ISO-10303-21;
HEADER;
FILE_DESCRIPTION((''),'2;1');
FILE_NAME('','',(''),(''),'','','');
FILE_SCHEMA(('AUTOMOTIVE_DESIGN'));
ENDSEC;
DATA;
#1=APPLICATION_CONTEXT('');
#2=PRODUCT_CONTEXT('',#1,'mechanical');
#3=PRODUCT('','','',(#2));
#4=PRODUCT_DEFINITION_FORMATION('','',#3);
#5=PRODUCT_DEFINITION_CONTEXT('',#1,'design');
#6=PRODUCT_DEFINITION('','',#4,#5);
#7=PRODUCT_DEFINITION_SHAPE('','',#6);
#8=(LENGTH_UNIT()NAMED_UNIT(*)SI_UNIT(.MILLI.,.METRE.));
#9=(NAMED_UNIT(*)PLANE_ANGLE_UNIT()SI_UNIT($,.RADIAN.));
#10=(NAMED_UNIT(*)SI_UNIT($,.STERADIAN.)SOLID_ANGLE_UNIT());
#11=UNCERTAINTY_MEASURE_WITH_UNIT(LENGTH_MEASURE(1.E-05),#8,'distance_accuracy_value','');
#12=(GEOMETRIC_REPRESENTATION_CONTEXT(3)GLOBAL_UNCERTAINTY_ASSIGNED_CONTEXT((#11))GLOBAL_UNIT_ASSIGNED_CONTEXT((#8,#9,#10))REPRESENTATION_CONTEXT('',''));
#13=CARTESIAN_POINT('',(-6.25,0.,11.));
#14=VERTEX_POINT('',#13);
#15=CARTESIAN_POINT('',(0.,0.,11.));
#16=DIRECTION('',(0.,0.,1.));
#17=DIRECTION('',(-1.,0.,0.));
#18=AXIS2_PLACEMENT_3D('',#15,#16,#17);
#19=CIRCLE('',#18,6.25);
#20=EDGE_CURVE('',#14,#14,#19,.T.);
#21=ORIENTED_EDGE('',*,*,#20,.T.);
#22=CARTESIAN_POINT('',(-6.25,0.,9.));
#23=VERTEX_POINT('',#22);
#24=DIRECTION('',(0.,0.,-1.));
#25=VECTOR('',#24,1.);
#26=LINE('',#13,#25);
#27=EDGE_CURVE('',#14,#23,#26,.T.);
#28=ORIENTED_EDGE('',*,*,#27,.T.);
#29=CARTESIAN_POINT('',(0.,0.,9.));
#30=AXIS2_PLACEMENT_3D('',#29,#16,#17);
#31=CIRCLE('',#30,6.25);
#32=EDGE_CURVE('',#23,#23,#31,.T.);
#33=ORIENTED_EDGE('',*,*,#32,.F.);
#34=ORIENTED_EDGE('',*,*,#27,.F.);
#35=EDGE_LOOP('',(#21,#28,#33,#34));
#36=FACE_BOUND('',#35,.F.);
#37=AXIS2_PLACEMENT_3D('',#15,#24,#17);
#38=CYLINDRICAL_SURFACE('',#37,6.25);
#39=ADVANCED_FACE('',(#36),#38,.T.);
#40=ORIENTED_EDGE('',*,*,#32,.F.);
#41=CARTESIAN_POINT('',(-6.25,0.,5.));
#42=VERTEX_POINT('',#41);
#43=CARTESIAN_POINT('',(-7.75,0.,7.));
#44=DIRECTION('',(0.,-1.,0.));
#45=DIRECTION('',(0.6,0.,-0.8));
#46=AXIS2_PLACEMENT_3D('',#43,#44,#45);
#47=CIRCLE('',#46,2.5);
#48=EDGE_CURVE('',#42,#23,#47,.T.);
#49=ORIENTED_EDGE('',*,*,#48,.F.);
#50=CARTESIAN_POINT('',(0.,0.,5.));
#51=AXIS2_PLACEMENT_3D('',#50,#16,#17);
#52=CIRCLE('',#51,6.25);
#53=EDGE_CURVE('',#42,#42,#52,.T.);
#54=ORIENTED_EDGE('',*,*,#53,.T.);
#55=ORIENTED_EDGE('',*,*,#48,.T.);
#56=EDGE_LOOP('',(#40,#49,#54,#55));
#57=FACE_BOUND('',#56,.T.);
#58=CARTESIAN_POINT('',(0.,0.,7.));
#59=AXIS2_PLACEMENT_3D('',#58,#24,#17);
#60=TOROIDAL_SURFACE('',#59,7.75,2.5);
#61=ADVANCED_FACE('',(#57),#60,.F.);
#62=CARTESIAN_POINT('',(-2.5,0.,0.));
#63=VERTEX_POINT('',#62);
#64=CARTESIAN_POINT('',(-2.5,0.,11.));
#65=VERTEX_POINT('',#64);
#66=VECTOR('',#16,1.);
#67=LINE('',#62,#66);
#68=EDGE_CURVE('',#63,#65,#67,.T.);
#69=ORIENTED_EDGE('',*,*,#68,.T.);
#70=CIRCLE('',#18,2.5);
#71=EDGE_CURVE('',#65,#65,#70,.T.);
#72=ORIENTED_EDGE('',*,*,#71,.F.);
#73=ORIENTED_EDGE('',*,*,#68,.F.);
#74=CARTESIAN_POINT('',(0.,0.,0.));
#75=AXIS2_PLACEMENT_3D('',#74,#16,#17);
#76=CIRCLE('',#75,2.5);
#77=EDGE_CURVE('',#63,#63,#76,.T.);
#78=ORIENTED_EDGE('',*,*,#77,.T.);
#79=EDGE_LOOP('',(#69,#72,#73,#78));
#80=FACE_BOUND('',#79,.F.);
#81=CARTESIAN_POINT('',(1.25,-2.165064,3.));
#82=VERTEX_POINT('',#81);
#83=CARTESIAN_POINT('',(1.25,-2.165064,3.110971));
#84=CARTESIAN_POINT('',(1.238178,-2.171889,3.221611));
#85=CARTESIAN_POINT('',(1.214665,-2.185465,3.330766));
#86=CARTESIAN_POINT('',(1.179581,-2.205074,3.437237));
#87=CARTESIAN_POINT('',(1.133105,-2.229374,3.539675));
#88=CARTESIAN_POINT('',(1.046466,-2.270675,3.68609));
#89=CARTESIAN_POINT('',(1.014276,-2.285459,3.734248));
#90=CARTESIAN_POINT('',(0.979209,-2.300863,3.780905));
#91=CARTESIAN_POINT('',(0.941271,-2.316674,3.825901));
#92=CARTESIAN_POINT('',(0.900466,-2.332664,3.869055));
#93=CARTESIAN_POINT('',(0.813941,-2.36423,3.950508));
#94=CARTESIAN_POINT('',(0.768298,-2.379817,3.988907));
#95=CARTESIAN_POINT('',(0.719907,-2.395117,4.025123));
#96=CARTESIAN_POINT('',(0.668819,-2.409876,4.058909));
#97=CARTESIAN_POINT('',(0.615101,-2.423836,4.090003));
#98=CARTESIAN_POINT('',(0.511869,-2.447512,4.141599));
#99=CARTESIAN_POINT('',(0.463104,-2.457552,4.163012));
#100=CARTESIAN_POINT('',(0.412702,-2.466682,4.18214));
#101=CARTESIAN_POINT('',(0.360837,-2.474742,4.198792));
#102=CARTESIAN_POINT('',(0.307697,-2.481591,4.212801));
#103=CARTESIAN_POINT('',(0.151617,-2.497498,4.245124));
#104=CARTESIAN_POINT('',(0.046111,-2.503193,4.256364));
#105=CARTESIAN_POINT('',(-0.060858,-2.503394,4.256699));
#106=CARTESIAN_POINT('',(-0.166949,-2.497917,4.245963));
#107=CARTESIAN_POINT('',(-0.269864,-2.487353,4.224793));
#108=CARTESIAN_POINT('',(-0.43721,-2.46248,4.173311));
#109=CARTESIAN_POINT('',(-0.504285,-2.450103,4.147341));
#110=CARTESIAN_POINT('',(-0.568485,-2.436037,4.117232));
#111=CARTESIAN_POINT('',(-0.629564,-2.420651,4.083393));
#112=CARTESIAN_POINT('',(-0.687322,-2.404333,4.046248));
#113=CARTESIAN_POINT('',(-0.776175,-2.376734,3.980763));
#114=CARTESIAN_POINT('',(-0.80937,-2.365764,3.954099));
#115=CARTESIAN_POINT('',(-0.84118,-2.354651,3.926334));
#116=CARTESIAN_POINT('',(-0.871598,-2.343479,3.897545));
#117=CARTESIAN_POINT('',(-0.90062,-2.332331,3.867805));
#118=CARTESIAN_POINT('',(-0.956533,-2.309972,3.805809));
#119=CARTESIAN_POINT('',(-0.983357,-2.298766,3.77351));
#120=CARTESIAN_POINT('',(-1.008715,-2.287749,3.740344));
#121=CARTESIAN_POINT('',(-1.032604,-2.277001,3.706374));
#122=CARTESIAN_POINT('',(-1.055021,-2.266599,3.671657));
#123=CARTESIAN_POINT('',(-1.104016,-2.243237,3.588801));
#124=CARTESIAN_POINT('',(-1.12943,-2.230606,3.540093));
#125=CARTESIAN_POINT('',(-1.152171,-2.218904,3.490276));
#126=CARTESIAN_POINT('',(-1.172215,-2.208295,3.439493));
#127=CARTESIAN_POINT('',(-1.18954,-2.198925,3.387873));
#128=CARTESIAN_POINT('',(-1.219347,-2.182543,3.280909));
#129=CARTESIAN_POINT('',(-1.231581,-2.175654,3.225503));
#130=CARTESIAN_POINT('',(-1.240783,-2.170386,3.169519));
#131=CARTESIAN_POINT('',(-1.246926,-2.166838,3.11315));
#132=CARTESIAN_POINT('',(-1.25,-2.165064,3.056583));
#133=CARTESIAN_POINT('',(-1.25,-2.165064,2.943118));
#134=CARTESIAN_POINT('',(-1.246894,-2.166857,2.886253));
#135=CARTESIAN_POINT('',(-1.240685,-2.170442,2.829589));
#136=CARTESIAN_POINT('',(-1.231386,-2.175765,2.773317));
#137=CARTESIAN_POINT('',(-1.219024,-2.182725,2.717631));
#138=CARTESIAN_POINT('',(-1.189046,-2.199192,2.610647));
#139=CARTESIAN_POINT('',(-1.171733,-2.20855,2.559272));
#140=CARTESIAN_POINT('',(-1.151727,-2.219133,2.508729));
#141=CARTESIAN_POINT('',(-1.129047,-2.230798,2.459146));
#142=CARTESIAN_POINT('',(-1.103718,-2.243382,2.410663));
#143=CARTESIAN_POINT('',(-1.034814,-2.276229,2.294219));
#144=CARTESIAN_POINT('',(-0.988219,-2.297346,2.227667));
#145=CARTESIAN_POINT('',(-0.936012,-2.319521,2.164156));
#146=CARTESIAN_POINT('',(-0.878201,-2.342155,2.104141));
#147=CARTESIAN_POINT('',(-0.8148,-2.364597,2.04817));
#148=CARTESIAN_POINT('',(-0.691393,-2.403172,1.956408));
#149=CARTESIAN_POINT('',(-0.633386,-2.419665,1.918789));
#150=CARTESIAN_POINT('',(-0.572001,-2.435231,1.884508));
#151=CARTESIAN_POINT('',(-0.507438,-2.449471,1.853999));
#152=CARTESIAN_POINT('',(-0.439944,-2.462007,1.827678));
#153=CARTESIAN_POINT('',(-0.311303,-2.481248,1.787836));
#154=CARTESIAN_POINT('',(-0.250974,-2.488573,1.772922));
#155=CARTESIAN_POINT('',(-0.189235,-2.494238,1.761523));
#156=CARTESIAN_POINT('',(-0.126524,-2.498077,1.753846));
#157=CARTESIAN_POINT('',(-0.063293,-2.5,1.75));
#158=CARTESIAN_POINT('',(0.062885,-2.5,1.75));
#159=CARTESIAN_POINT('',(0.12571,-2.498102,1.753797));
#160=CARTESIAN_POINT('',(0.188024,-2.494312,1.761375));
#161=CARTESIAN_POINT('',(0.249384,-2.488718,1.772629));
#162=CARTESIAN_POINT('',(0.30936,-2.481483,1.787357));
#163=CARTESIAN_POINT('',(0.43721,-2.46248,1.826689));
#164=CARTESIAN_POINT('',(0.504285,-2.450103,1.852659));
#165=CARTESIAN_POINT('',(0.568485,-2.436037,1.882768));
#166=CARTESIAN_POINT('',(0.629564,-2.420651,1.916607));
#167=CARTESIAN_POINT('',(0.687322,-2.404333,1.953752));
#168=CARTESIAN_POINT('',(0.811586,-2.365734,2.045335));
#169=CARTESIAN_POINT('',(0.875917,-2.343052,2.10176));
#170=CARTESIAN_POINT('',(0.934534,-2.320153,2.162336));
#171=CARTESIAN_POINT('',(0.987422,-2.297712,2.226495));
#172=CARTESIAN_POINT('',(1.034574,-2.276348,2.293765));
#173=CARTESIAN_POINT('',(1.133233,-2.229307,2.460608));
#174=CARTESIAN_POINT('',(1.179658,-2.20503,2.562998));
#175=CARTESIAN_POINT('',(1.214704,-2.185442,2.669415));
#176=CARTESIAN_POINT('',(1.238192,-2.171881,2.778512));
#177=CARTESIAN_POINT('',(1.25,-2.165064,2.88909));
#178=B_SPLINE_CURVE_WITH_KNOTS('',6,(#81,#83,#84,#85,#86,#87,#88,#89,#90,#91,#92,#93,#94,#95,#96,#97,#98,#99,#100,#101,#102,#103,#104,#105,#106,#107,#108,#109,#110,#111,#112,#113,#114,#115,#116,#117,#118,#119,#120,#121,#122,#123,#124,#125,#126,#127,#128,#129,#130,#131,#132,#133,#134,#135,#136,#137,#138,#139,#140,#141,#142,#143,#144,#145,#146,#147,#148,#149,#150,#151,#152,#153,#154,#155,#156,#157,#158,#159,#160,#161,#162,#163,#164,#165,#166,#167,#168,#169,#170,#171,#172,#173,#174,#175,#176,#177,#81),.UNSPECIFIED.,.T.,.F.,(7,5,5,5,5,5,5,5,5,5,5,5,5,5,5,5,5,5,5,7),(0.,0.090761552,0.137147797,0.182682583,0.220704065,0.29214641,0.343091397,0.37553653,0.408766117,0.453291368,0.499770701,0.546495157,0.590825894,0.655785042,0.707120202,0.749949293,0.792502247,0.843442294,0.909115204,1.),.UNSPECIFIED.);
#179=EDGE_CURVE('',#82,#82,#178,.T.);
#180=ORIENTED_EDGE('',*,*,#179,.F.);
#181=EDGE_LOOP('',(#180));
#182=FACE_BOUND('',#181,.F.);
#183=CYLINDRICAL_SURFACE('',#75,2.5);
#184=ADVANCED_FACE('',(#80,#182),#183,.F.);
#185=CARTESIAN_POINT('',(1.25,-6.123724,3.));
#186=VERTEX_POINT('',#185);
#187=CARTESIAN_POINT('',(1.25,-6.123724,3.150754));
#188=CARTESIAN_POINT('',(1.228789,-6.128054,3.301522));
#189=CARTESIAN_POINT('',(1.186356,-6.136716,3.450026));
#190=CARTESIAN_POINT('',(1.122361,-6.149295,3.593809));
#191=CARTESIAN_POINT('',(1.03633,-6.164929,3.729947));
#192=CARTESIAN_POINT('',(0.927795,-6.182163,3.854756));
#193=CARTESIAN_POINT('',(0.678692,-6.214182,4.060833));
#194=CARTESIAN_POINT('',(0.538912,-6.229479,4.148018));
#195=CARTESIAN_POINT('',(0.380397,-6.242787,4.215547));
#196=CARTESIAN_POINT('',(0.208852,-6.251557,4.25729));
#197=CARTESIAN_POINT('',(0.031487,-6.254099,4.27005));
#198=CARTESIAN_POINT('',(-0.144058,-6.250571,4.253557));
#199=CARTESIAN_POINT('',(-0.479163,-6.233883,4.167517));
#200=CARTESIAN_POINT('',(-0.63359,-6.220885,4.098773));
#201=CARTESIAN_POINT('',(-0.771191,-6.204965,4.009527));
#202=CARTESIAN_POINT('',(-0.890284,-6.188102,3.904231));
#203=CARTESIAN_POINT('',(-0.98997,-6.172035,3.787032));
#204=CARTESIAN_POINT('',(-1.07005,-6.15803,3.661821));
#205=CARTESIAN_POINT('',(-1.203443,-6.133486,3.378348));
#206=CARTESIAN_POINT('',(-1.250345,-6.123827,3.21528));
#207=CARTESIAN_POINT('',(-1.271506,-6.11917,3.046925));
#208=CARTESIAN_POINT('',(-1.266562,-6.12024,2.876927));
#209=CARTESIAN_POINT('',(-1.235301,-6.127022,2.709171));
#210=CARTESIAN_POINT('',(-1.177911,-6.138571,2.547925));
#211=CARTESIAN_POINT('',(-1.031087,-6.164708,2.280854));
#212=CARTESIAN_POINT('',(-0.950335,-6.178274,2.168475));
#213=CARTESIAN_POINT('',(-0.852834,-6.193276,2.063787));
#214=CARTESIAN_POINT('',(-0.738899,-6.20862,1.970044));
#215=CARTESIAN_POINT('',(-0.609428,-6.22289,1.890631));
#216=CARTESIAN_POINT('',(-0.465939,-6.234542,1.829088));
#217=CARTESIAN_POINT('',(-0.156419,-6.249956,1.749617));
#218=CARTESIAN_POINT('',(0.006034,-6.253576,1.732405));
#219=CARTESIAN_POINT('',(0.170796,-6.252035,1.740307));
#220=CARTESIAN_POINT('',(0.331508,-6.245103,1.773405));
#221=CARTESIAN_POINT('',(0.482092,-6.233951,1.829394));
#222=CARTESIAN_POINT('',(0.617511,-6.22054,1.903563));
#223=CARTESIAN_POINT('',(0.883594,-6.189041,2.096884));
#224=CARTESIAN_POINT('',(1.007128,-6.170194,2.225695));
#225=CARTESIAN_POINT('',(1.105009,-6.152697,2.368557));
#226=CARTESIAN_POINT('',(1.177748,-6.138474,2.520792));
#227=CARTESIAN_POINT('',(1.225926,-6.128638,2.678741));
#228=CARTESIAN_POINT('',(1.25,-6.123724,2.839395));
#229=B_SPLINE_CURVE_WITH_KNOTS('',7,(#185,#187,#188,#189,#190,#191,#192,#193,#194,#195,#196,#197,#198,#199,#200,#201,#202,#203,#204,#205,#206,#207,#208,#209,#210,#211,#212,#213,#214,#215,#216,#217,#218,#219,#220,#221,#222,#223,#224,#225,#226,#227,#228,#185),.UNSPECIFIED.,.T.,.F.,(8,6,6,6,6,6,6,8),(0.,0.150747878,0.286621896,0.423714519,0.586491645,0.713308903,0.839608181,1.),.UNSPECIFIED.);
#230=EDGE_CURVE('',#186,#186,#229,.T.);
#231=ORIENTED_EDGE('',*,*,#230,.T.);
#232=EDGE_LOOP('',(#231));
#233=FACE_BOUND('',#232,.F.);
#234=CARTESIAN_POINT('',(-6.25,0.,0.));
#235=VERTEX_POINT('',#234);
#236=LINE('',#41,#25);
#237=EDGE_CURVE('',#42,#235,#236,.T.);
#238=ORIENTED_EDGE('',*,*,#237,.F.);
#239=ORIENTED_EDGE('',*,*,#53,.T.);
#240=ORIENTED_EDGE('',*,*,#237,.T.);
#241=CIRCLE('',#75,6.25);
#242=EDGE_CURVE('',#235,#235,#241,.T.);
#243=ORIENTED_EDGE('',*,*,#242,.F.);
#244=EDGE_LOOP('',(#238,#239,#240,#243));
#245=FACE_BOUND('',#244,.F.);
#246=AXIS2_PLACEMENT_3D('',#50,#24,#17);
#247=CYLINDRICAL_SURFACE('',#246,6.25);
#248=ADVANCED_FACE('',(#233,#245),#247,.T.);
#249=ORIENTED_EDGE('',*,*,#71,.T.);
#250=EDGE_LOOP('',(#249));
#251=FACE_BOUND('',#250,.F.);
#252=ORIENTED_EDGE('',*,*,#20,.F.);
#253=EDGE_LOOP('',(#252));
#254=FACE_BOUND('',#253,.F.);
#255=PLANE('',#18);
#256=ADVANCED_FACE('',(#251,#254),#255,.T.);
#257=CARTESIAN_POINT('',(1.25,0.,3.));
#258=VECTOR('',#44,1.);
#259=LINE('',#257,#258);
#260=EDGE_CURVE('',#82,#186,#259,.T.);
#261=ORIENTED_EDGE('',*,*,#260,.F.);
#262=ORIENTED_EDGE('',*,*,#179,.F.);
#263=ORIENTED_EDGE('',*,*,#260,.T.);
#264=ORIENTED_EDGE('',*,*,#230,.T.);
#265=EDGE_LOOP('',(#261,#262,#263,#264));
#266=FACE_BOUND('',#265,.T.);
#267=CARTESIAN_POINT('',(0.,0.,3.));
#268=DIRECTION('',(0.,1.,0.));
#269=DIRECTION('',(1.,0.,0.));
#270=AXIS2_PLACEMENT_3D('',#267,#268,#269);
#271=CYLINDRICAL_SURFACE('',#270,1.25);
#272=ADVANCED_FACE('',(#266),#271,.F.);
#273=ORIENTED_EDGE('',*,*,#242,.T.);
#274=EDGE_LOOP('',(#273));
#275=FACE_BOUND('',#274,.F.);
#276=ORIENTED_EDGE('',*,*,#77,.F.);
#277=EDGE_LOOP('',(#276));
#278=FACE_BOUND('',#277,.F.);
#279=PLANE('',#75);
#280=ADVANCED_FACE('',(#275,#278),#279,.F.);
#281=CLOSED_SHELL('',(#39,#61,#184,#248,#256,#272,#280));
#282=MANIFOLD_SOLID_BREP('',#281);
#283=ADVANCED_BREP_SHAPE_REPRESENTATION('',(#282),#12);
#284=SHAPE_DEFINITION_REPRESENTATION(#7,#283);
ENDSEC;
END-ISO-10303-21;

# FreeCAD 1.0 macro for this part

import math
import FreeCAD as App
import Part
import Sketcher

V = App.Vector

doc = App.newDocument("Part")
body = doc.addObject("PartDesign::Body", "Body")

sketch1 = body.newObject("Sketcher::SketchObject", "Sketch")
sketch1.AttachmentSupport = (doc.getObject("XY_Plane"), [""])
sketch1.MapMode = "FlatFace"
sketch1.addGeometry(Part.Circle(V(0, 0, 0), V(0, 0, 1), 1.2), False)
sketch1.addConstraint(Sketcher.Constraint("Coincident", 0, 3, -1, 1))
sketch1.addConstraint(Sketcher.Constraint("Diameter", 0, 2.5))
pad1 = body.newObject("PartDesign::Pad", "Pad")
pad1.Profile = sketch1
pad1.Length = 10
body2 = doc.addObject("PartDesign::Body", "Body001")
doc.recompute()

body.Placement = App.Placement(V(0, 0, 0), App.Rotation(V(1, 0, 0), 90))
boolean = body2.newObject("PartDesign::Boolean", "Boolean")
boolean.Type = "Fuse"
boolean.addObjects([body])
body3 = doc.addObject("PartDesign::Body", "Body002")
doc.recompute()

body2.Placement = App.Placement(V(0, 0, 3), App.Rotation(V(0, 0, 1), 0))
boolean2 = body3.newObject("PartDesign::Boolean", "Boolean001")
boolean2.Type = "Fuse"
boolean2.addObjects([body2])
body4 = doc.addObject("PartDesign::Body", "Body003")

sketch2 = body4.newObject("Sketcher::SketchObject", "Sketch001")
sketch2.AttachmentSupport = (doc.getObject("XY_Plane003"), [""])
sketch2.MapMode = "FlatFace"
sketch2.addGeometry(Part.LineSegment(V(-6.2, 5, 0), V(-6.2, 0, 0)), False)
sketch2.addGeometry(Part.LineSegment(V(-6.2, 0, 0), V(-2.5, 0, 0)), False)
sketch2.addGeometry(Part.LineSegment(V(-2.5, 0, 0), V(-2.5, 11, 0)), False)
sketch2.addGeometry(Part.LineSegment(V(-2.5, 11, 0), V(-6.2, 11, 0)), False)
sketch2.addGeometry(Part.LineSegment(V(-6.2, 11, 0), V(-6.2, 9, 0)), False)
sketch2.addGeometry(Part.ArcOfCircle(Part.Circle(V(-7.8, 7, 0), V(0, 0, 1), 2.5), math.radians(-53), math.radians(53)), False)
sketch2.addConstraint(Sketcher.Constraint("Coincident", 0, 2, 1, 1))
sketch2.addConstraint(Sketcher.Constraint("Coincident", 1, 2, 2, 1))
sketch2.addConstraint(Sketcher.Constraint("Coincident", 2, 2, 3, 1))
sketch2.addConstraint(Sketcher.Constraint("Coincident", 3, 2, 4, 1))
sketch2.addConstraint(Sketcher.Constraint("Coincident", 4, 2, 5, 2))
sketch2.addConstraint(Sketcher.Constraint("Coincident", 5, 1, 0, 1))
sketch2.addConstraint(Sketcher.Constraint("Vertical", 0))
sketch2.addConstraint(Sketcher.Constraint("Horizontal", 1))
sketch2.addConstraint(Sketcher.Constraint("Vertical", 2))
sketch2.addConstraint(Sketcher.Constraint("Horizontal", 3))
sketch2.addConstraint(Sketcher.Constraint("Vertical", 4))
sketch2.addConstraint(Sketcher.Constraint("PointOnObject", 0, 2, -1))
sketch2.addConstraint(Sketcher.Constraint("Vertical", 0, 2, 3, 2))
sketch2.addConstraint(Sketcher.Constraint("Radius", 5, 2.5))
sketch2.addConstraint(Sketcher.Constraint("DistanceY", 0, 2, 0, 1, 5.0))
sketch2.addConstraint(Sketcher.Constraint("DistanceY", 2, 1, 2, 2, 11.0))
sketch2.addConstraint(Sketcher.Constraint("DistanceY", 4, 2, 4, 1, 2.0))
sketch2.addConstraint(Sketcher.Constraint("DistanceX", 1, 1, 1, 2, 3.75))
sketch2.addConstraint(Sketcher.Constraint("DistanceX", 1, 2, -1, 1, 2.5))
revolution = body4.newObject("PartDesign::Revolution", "Revolution")
revolution.Profile = sketch2
revolution.ReferenceAxis = (sketch2, ["V_Axis"])
revolution.Angle = 360
body5 = doc.addObject("PartDesign::Body", "Body004")
doc.recompute()

body4.Placement = App.Placement(V(0, 0, 0), App.Rotation(V(1, 0, 0), 90))
boolean3 = body5.newObject("PartDesign::Boolean", "Boolean002")
boolean3.Type = "Fuse"
boolean3.addObjects([body4])
doc.recompute()

boolean4 = body5.newObject("PartDesign::Boolean", "Boolean003")
boolean4.Type = "Cut"
boolean4.addObjects([body3])

doc.recompute()
